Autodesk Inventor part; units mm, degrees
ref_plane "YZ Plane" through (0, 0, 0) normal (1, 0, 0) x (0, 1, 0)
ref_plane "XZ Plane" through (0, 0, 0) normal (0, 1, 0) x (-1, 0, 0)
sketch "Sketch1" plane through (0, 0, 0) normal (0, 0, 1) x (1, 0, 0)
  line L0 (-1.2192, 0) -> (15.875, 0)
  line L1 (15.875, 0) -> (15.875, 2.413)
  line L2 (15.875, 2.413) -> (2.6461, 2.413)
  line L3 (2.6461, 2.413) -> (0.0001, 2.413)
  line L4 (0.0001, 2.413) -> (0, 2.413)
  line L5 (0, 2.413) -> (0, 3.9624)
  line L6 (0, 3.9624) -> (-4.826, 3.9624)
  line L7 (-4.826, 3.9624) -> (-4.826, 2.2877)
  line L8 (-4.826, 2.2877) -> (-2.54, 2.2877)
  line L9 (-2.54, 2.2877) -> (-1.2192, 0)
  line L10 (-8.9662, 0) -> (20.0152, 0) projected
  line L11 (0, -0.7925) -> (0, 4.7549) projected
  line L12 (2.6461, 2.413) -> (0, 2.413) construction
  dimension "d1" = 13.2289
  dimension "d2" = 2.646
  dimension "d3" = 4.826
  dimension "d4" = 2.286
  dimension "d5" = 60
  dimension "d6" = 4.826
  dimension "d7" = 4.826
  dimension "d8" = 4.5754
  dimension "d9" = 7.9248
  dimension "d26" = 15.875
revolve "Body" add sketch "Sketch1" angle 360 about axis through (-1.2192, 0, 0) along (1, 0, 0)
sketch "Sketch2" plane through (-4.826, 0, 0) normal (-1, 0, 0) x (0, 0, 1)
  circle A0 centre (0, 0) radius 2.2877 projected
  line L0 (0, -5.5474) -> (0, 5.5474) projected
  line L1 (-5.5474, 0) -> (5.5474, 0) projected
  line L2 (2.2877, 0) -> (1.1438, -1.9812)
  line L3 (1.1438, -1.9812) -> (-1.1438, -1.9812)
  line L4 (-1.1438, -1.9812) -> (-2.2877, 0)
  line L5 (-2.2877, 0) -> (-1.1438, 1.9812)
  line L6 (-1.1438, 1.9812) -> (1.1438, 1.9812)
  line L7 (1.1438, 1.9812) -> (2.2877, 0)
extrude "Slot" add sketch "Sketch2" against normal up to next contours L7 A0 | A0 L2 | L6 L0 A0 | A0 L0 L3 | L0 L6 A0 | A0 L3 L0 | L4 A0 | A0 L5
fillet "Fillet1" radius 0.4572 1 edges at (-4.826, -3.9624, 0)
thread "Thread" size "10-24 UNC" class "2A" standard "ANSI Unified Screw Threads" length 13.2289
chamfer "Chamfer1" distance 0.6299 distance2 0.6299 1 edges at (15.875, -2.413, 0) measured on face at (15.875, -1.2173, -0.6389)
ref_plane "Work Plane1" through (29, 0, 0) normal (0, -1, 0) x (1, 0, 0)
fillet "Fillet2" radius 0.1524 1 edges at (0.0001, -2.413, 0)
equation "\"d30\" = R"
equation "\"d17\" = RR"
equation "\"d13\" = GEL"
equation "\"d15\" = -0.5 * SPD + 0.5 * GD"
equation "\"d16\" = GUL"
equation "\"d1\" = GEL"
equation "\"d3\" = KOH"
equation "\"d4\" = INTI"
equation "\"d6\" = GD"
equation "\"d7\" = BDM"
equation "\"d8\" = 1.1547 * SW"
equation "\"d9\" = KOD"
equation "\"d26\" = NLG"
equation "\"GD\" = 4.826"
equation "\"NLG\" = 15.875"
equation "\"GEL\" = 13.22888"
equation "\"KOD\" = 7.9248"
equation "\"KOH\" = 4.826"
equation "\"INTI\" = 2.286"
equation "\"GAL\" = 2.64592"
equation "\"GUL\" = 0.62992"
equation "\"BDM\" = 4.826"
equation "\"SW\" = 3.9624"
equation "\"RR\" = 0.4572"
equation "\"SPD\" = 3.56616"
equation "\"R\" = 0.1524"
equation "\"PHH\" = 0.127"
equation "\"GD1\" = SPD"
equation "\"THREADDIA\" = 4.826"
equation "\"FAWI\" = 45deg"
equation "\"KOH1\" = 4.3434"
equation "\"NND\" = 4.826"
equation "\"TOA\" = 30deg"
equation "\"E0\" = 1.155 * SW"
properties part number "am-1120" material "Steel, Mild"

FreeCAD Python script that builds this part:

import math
import FreeCAD as App
import Part
import Sketcher
from FreeCAD import Vector
Q = App.Units.Quantity


def edges_at(feature, points):
    """Names of the edges that pass closest to the given points."""
    edges = feature.Shape.Edges
    near = lambda p: min(range(len(edges)), key=lambda i: edges[i].distToShape(Part.Vertex(*p))[0])
    return sorted({f"Edge{near(p) + 1}" for p in points})

doc = App.newDocument("Part")
body = doc.addObject("PartDesign::Body", "Body")

# Sketch on XY plane
sketch1 = doc.addObject("Sketcher::SketchObject", "Sketch")
body.addObject(sketch1)
sketch1.AttachmentSupport = (doc.XY_Plane, [""])
sketch1.MapMode = "FlatFace"
sketch1.addGeometry([
    Part.LineSegment(Vector(-2.54, 2.2877, 0), Vector(-1.2192, 0, 0)),  # 0
    Part.LineSegment(Vector(-1.2192, 0, 0), Vector(15.875, 0, 0)),  # 1
    Part.LineSegment(Vector(15.875, 0, 0), Vector(15.875, 2.413, 0)),  # 2
    Part.LineSegment(Vector(15.875, 2.413, 0), Vector(0.0001, 2.413, 0)),  # 3
    Part.LineSegment(Vector(0.0001, 2.413, 0), Vector(0, 3.9624, 0)),  # 4
    Part.LineSegment(Vector(0, 3.9624, 0), Vector(-4.826, 3.9624, 0)),  # 5
    Part.LineSegment(Vector(-4.826, 3.9624, 0), Vector(-4.826, 2.2877, 0)),  # 6
    Part.LineSegment(Vector(-4.826, 2.2877, 0), Vector(-2.54, 2.2877, 0)),  # 7
], False)
sketch1.addConstraint([
    Sketcher.Constraint("Coincident", 0, 2, 1, 1),
    Sketcher.Constraint("Coincident", 1, 2, 2, 1),
    Sketcher.Constraint("Coincident", 2, 2, 3, 1),
    Sketcher.Constraint("Coincident", 3, 2, 4, 1),
    Sketcher.Constraint("Coincident", 4, 2, 5, 1),
    Sketcher.Constraint("Coincident", 5, 2, 6, 1),
    Sketcher.Constraint("Coincident", 6, 2, 7, 1),
    Sketcher.Constraint("Coincident", 7, 2, 0, 1),
    Sketcher.Constraint("Horizontal", 1),
    Sketcher.Constraint("Vertical", 2),
    Sketcher.Constraint("Horizontal", 3),
    Sketcher.Constraint("Vertical", 4),
    Sketcher.Constraint("Horizontal", 5),
    Sketcher.Constraint("Vertical", 6),
    Sketcher.Constraint("Horizontal", 7),
    Sketcher.Constraint("PointOnObject", 0, 2, -1),
    Sketcher.Constraint("PointOnObject", 3, 2, -2),
    Sketcher.Constraint("Angle", 0, Q("-60 deg")),
    Sketcher.Constraint("DistanceX", 5, 2, 5, 1, Q("0.19 in")),
    Sketcher.Constraint("DistanceX", 7, 1, 7, 2, Q("0.09 in")),
    Sketcher.Constraint("DistanceX", 3, 2, 3, 1, Q("0.625 in")),
    Sketcher.Constraint("DistanceX", 1, 1, 1, 2, Q("0.673 in")),
    Sketcher.Constraint("DistanceY", 2, 1, 2, 2, Q("0.095 in")),
    Sketcher.Constraint("DistanceY", 4, 1, 4, 2, Q("0.061 in")),
])
revolution = doc.addObject("PartDesign::Revolution", "Revolution")
body.addObject(revolution)
revolution.Profile = sketch1
revolution.ReferenceAxis = (sketch1, ["H_Axis"])
revolution.Angle = 360

# Sketch on YZ plane
sketch2 = doc.addObject("Sketcher::SketchObject", "Sketch001")
body.addObject(sketch2)
sketch2.AttachmentSupport = (doc.YZ_Plane, [""])
sketch2.MapMode = "FlatFace"
sketch2.AttachmentOffset = App.Placement(Vector(0, 0, -0.19 * 25.4), App.Rotation())
sketch2.addGeometry([
    Part.LineSegment(Vector(1.9812, 1.1438, 0), Vector(0, 2.2877, 0)),  # 0
    Part.ArcOfCircle(Part.Circle(Vector(0, 0, 0), Vector(0, 0, 1), 2.2877), math.radians(29.998995), math.radians(90)),  # 1
    Part.ArcOfCircle(Part.Circle(Vector(0, 0, 0), Vector(0, 0, 1), 2.2877), math.radians(90), math.radians(150.001005)),  # 2
    Part.LineSegment(Vector(0, 2.2877, 0), Vector(-1.9812, 1.1438, 0)),  # 3
    Part.ArcOfCircle(Part.Circle(Vector(0, 0, 0), Vector(0, 0, 1), 2.2877), math.radians(-29.998995), math.radians(29.998995)),  # 4
    Part.LineSegment(Vector(1.9812, 1.1438, 0), Vector(1.9812, -1.1438, 0)),  # 5
    Part.LineSegment(Vector(-1.9812, 1.1438, 0), Vector(-1.9812, -1.1438, 0)),  # 6
    Part.ArcOfCircle(Part.Circle(Vector(0, 0, 0), Vector(0, 0, 1), 2.2877), math.radians(150.001005), math.radians(209.998995)),  # 7
    Part.LineSegment(Vector(-1.9812, -1.1438, 0), Vector(0, -2.2877, 0)),  # 8
    Part.ArcOfCircle(Part.Circle(Vector(0, 0, 0), Vector(0, 0, 1), 2.2877), math.radians(-150.001005), math.radians(-90)),  # 9
    Part.ArcOfCircle(Part.Circle(Vector(0, 0, 0), Vector(0, 0, 1), 2.2877), math.radians(-90), math.radians(-29.998995)),  # 10
    Part.LineSegment(Vector(0, -2.2877, 0), Vector(1.9812, -1.1438, 0)),  # 11
], False)
sketch2.addConstraint([
    Sketcher.Constraint("Coincident", 0, 1, 1, 1),
    Sketcher.Constraint("Coincident", 1, 2, 0, 2),
    Sketcher.Constraint("Coincident", 2, 1, 3, 1),
    Sketcher.Constraint("Coincident", 3, 2, 2, 2),
    Sketcher.Constraint("Coincident", 4, 1, 5, 2),
    Sketcher.Constraint("Coincident", 5, 1, 4, 2),
    Sketcher.Constraint("Coincident", 6, 1, 7, 1),
    Sketcher.Constraint("Coincident", 7, 2, 6, 2),
    Sketcher.Constraint("Coincident", 8, 1, 9, 1),
    Sketcher.Constraint("Coincident", 9, 2, 8, 2),
    Sketcher.Constraint("Coincident", 10, 1, 11, 1),
    Sketcher.Constraint("Coincident", 11, 2, 10, 2),
    Sketcher.Constraint("Vertical", 5),
    Sketcher.Constraint("Vertical", 6),
    Sketcher.Constraint("Coincident", 1, 3, -1, 1),
    Sketcher.Constraint("Coincident", 2, 3, -1, 1),
    Sketcher.Constraint("Coincident", 4, 3, -1, 1),
    Sketcher.Constraint("Coincident", 7, 3, -1, 1),
    Sketcher.Constraint("Coincident", 9, 3, -1, 1),
    Sketcher.Constraint("Coincident", 10, 3, -1, 1),
    Sketcher.Constraint("Coincident", 2, 1, 1, 2),
    Sketcher.Constraint("Coincident", 5, 1, 0, 1),
    Sketcher.Constraint("Coincident", 6, 1, 3, 2),
    Sketcher.Constraint("Coincident", 8, 1, 7, 2),
    Sketcher.Constraint("Coincident", 10, 1, 9, 2),
    Sketcher.Constraint("PointOnObject", 1, 2, -2),
    Sketcher.Constraint("PointOnObject", 9, 2, -2),
    Sketcher.Constraint("Parallel", 0, 8),
    Sketcher.Constraint("Parallel", 3, 11),
    Sketcher.Constraint("Angle", 0, Q("149.9988 deg")),
    Sketcher.Constraint("Radius", 1, Q("2.2877 mm")),
])
pad1 = doc.addObject("PartDesign::Pad", "Pad")
body.addObject(pad1)
pad1.Profile = sketch2
pad1.Length = 2.463
doc.recompute()

fillet = doc.addObject("PartDesign::Fillet", "Fillet")
body.addObject(fillet)
fillet.Base = (pad1, edges_at(pad1, [(-4.826, -3.962, 0)]))
fillet.Radius = Q("0.018 in")
doc.recompute()

chamfer = doc.addObject("PartDesign::Chamfer", "Chamfer")
body.addObject(chamfer)
chamfer.Base = (fillet, edges_at(fillet, [(15.875, -2.413, 0)]))
chamfer.ChamferType = "Two distances"
chamfer.Size = Q("0.0247992 in")
chamfer.Size2 = Q("0.0247992 in")
doc.recompute()

fillet2 = doc.addObject("PartDesign::Fillet", "Fillet001")
body.addObject(fillet2)
fillet2.Base = (chamfer, edges_at(chamfer, [(0, -2.413, 0)]))
fillet2.Radius = Q("0.006 in")

doc.recompute()
